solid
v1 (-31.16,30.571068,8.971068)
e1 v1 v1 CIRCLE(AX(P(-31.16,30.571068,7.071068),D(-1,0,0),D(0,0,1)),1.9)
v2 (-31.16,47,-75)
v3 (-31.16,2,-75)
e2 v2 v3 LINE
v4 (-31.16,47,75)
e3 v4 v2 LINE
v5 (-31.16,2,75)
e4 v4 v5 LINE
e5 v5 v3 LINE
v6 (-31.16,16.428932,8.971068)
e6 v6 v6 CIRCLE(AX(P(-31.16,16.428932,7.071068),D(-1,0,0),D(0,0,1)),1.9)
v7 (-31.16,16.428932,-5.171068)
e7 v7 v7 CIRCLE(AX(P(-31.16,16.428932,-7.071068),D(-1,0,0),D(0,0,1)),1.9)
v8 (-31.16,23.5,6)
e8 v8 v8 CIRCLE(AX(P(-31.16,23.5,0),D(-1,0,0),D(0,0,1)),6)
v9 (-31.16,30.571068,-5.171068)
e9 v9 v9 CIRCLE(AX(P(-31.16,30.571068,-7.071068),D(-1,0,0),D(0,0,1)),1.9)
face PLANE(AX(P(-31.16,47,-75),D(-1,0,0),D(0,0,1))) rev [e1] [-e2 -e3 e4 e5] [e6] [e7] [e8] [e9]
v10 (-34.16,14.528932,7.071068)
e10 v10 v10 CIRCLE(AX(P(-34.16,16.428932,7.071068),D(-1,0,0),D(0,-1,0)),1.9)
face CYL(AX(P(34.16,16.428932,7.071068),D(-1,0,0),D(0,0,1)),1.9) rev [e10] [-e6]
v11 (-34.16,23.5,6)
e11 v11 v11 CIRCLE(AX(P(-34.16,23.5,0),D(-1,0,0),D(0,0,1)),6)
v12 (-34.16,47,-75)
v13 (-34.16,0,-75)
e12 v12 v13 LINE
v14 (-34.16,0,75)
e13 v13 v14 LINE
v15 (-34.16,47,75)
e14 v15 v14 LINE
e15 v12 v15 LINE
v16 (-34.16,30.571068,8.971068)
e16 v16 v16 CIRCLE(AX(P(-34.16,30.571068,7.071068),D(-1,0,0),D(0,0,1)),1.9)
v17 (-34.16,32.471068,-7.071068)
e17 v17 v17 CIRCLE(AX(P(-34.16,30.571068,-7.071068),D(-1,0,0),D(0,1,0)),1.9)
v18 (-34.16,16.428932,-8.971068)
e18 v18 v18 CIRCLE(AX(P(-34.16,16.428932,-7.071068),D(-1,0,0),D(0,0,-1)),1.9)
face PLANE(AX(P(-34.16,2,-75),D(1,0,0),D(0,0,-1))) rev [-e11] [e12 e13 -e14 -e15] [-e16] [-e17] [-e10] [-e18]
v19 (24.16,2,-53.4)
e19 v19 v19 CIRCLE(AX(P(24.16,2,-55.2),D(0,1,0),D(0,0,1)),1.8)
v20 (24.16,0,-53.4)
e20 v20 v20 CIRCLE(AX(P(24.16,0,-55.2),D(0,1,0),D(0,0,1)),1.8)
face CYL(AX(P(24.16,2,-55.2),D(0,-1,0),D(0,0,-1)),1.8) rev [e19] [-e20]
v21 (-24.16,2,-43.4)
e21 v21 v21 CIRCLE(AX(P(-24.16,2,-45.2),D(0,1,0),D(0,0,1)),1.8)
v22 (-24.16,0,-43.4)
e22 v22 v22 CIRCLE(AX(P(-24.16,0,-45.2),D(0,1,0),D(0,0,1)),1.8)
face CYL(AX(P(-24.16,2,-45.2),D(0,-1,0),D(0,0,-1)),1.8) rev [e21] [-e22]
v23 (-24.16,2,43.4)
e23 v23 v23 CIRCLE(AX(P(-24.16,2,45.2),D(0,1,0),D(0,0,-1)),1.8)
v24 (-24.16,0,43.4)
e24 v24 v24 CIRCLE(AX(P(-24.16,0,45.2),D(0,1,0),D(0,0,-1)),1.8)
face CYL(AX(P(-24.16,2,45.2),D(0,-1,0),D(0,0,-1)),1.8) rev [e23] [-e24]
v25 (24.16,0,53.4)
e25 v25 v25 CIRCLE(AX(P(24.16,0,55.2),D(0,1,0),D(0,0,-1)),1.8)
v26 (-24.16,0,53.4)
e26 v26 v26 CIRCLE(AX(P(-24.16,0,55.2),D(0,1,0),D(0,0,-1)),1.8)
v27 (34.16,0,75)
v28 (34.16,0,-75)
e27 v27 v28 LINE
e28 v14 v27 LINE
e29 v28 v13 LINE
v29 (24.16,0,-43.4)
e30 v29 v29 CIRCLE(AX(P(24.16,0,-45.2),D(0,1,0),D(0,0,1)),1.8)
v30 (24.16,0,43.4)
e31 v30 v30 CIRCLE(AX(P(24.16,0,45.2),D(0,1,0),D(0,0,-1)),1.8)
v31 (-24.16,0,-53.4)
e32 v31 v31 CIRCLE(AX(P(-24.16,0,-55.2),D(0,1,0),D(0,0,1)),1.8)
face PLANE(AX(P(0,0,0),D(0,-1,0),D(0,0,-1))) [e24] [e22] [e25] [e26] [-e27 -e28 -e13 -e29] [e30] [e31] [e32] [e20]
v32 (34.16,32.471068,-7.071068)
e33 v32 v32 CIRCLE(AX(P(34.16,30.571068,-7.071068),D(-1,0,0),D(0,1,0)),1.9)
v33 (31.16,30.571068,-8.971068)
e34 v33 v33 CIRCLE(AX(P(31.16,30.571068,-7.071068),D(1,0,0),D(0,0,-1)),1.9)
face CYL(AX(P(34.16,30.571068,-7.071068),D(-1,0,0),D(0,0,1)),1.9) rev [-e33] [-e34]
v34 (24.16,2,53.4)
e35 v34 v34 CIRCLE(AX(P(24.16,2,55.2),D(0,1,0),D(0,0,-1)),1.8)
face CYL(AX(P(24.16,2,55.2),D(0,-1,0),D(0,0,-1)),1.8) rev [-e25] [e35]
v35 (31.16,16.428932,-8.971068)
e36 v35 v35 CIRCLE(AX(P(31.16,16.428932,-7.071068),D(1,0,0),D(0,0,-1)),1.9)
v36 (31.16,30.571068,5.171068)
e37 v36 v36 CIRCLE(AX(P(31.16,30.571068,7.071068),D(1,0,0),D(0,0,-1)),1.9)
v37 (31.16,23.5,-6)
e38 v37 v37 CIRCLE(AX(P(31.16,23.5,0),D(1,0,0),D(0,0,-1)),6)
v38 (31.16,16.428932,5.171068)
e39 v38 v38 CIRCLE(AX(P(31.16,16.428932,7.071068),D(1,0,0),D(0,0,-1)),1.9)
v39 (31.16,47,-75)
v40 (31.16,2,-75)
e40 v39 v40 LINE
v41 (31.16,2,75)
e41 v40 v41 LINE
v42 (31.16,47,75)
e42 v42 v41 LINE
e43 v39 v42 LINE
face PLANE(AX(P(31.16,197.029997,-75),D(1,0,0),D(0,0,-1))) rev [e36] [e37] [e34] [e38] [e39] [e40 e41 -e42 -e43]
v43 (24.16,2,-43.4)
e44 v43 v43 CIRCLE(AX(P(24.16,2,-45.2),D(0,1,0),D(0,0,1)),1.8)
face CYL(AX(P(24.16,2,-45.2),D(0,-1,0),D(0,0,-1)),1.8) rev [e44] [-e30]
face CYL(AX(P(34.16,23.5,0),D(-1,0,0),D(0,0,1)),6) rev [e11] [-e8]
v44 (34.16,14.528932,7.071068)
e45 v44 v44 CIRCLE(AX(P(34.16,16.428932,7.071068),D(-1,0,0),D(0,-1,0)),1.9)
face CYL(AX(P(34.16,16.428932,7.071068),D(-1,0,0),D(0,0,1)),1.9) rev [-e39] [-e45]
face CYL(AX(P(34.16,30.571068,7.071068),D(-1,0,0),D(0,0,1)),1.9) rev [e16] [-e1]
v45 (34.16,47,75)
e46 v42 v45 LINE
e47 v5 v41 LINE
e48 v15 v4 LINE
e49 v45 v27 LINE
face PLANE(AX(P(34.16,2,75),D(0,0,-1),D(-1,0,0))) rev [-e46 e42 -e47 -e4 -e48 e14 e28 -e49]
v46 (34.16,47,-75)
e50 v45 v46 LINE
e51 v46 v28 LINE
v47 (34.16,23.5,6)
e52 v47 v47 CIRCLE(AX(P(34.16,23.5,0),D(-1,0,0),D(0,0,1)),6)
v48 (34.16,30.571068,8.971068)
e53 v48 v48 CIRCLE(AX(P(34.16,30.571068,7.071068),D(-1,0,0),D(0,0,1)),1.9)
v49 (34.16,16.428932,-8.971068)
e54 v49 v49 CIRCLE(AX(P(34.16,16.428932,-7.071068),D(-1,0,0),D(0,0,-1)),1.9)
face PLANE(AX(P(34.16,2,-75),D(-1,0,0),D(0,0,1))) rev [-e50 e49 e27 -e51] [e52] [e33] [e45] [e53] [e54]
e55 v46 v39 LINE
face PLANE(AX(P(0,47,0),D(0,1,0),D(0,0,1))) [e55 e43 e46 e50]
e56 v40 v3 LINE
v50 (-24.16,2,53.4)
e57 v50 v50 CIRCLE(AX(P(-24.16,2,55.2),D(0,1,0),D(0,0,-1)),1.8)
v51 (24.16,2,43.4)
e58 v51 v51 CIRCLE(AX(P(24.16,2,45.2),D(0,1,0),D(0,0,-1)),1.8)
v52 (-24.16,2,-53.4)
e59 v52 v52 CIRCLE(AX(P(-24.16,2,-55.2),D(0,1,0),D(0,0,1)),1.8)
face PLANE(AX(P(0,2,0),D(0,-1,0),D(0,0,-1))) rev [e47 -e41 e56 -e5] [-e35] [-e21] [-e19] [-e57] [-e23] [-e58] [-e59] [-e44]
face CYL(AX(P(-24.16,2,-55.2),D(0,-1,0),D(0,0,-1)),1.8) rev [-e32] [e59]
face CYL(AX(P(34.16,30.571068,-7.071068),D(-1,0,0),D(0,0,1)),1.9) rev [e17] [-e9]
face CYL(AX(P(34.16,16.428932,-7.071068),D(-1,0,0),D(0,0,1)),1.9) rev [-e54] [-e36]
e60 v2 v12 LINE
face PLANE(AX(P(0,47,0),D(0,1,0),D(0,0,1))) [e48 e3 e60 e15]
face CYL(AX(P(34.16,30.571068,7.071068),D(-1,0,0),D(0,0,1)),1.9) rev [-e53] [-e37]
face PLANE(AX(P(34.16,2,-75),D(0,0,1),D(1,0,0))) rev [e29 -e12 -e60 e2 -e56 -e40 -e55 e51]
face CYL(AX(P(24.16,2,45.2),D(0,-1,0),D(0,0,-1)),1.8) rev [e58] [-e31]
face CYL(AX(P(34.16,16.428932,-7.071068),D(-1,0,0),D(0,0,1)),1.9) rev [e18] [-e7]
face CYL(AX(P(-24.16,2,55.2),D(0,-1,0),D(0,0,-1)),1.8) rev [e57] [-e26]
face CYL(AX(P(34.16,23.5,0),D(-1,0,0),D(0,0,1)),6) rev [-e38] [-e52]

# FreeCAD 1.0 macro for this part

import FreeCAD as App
import Part
import Sketcher
from FreeCAD import Vector
Q = App.Units.Quantity

doc = App.newDocument("Part")
params = doc.addObject("Spreadsheet::Sheet", "Params")
for row, (alias, value) in enumerate([
    ("sketch1_diameter", "3.6 mm"),
    ("sketch1_height", "150 mm"),
    ("sketch1_width", "68.32 mm"),
    ("pad1_length", "2 mm"),
    ("sketch2_width", "3 mm"),
    ("sketch2_height", "150 mm"),
    ("pad2_length", "45 mm"),
    ("sketch3_width", "3 mm"),
    ("sketch3_height", "150 mm"),
    ("pad3_length", "45 mm"),
    ("sketch4_diameter", "12 mm"),
    ("sketch4_diameter2", "3.8 mm"),
], start=1):
    params.set(f"A{row}", alias)
    params.set(f"B{row}", "=" + value)
    params.setAlias(f"B{row}", alias)

body = doc.addObject("PartDesign::Body", "Body")

# Sketch on XZ plane
sketch1 = body.newObject("Sketcher::SketchObject", "Sketch")
sketch1.AttachmentSupport = (doc.getObject("XZ_Plane"), [""])
sketch1.MapMode = "FlatFace"
sketch1.addGeometry([
    Part.LineSegment(Vector(-34.2, -75, 0), Vector(-34.2, 75, 0)),  # 0
    Part.LineSegment(Vector(-34.2, 75, 0), Vector(34.2, 75, 0)),  # 1
    Part.LineSegment(Vector(34.2, 75, 0), Vector(34.2, -75, 0)),  # 2
    Part.LineSegment(Vector(34.2, -75, 0), Vector(-34.2, -75, 0)),  # 3
    Part.Circle(Vector(-24.2, 55.2, 0), Vector(0, 0, 1), 1.8),  # 4
    Part.Circle(Vector(-24.2, 45.2, 0), Vector(0, 0, 1), 1.8),  # 5
    Part.Circle(Vector(24.2, 55.2, 0), Vector(0, 0, 1), 1.8),  # 6
    Part.Circle(Vector(24.2, 45.2, 0), Vector(0, 0, 1), 1.8),  # 7
    Part.Circle(Vector(-24.2, -45.2, 0), Vector(0, 0, 1), 1.8),  # 8
    Part.Circle(Vector(-24.2, -55.2, 0), Vector(0, 0, 1), 1.8),  # 9
    Part.Circle(Vector(24.2, -45.2, 0), Vector(0, 0, 1), 1.8),  # 10
    Part.Circle(Vector(24.2, -55.2, 0), Vector(0, 0, 1), 1.8),  # 11
], False)
sketch1.addConstraint([
    Sketcher.Constraint("Coincident", 0, 2, 1, 1),
    Sketcher.Constraint("Coincident", 1, 2, 2, 1),
    Sketcher.Constraint("Coincident", 2, 2, 3, 1),
    Sketcher.Constraint("Coincident", 3, 2, 0, 1),
    Sketcher.Constraint("Vertical", 0),
    Sketcher.Constraint("Horizontal", 1),
    Sketcher.Constraint("Vertical", 2),
    Sketcher.Constraint("Horizontal", 3),
    Sketcher.Constraint("Equal", 4, 5),
    Sketcher.Constraint("Equal", 5, 6),
    Sketcher.Constraint("Equal", 6, 7),
    Sketcher.Constraint("Equal", 7, 8),
    Sketcher.Constraint("Equal", 8, 9),
    Sketcher.Constraint("Equal", 9, 10),
    Sketcher.Constraint("Equal", 10, 11),
    Sketcher.Constraint("Symmetric", 7, 3, 8, 3, -1, 1),
    Sketcher.Constraint("Symmetric", 6, 3, 9, 3, -1, 1),
    Sketcher.Constraint("Symmetric", 5, 3, 10, 3, -1, 1),
    Sketcher.Constraint("Symmetric", 4, 3, 11, 3, -1, 1),
    Sketcher.Constraint("Symmetric", 0, 2, 2, 2, -1, 1),
    Sketcher.Constraint("Symmetric", 4, 3, 6, 3, -2),
    Sketcher.Constraint("Symmetric", 5, 3, 7, 3, -2),
    Sketcher.Constraint("Vertical", 4, 3, 5, 3),
    Sketcher.Constraint("Diameter", 4, Q("3.6 mm")),
    Sketcher.Constraint("DistanceY", 0, 1, 0, 2, Q("150 mm")),
    Sketcher.Constraint("DistanceY", 5, 3, 4, 3, Q("10 mm")),
    Sketcher.Constraint("DistanceX", 0, 2, 4, 3, Q("10 mm")),
    Sketcher.Constraint("DistanceX", 1, 1, 1, 2, Q("68.32 mm")),
    Sketcher.Constraint("DistanceY", -1, 1, 4, 3, Q("55.2 mm")),
])
sketch1.setExpression("Constraints[23]", "Params.sketch1_diameter")
sketch1.setExpression("Constraints[24]", "Params.sketch1_height")
sketch1.setExpression("Constraints[27]", "Params.sketch1_width")
pad1 = body.newObject("PartDesign::Pad", "Pad")
pad1.Profile = sketch1
pad1.setExpression("Length", "Params.pad1_length")
pad1.Reversed = True

# Sketch on XZ plane
sketch2 = body.newObject("Sketcher::SketchObject", "Sketch001")
sketch2.AttachmentSupport = (doc.getObject("XZ_Plane"), [""])
sketch2.MapMode = "FlatFace"
sketch2.AttachmentOffset = App.Placement(Vector(0, 0, -2), App.Rotation())
sketch2.addGeometry([
    Part.LineSegment(Vector(-34.2, -75, 0), Vector(-34.2, 75, 0)),
    Part.LineSegment(Vector(-34.2, 75, 0), Vector(-31.2, 75, 0)),
    Part.LineSegment(Vector(-31.2, 75, 0), Vector(-31.2, -75, 0)),
    Part.LineSegment(Vector(-31.2, -75, 0), Vector(-34.2, -75, 0)),
], False)
sketch2.addConstraint([
    Sketcher.Constraint("Coincident", 0, 2, 1, 1),
    Sketcher.Constraint("Coincident", 1, 2, 2, 1),
    Sketcher.Constraint("Coincident", 2, 2, 3, 1),
    Sketcher.Constraint("Coincident", 3, 2, 0, 1),
    Sketcher.Constraint("Vertical", 0),
    Sketcher.Constraint("Horizontal", 1),
    Sketcher.Constraint("Vertical", 2),
    Sketcher.Constraint("Horizontal", 3),
    Sketcher.Constraint("DistanceX", 1, 1, 1, 2, Q("3 mm")),
    Sketcher.Constraint("DistanceY", 0, 1, 0, 2, Q("150 mm")),
    Sketcher.Constraint("DistanceY", -1, 1, 0, 2, Q("75 mm")),
    Sketcher.Constraint("DistanceX", 0, 2, -1, 1, Q("34.16 mm")),
])
sketch2.setExpression("Constraints[8]", "Params.sketch2_width")
sketch2.setExpression("Constraints[9]", "Params.sketch2_height")
pad2 = body.newObject("PartDesign::Pad", "Pad001")
pad2.Profile = sketch2
pad2.setExpression("Length", "Params.pad2_length")
pad2.Reversed = True

# Sketch on XZ plane
sketch3 = body.newObject("Sketcher::SketchObject", "Sketch002")
sketch3.AttachmentSupport = (doc.getObject("XZ_Plane"), [""])
sketch3.MapMode = "FlatFace"
sketch3.AttachmentOffset = App.Placement(Vector(0, 0, -2), App.Rotation())
sketch3.addGeometry([
    Part.LineSegment(Vector(31.2, -75, 0), Vector(31.2, 75, 0)),
    Part.LineSegment(Vector(31.2, 75, 0), Vector(34.2, 75, 0)),
    Part.LineSegment(Vector(34.2, 75, 0), Vector(34.2, -75, 0)),
    Part.LineSegment(Vector(34.2, -75, 0), Vector(31.2, -75, 0)),
], False)
sketch3.addConstraint([
    Sketcher.Constraint("Coincident", 0, 2, 1, 1),
    Sketcher.Constraint("Coincident", 1, 2, 2, 1),
    Sketcher.Constraint("Coincident", 2, 2, 3, 1),
    Sketcher.Constraint("Coincident", 3, 2, 0, 1),
    Sketcher.Constraint("Vertical", 0),
    Sketcher.Constraint("Horizontal", 1),
    Sketcher.Constraint("Vertical", 2),
    Sketcher.Constraint("Horizontal", 3),
    Sketcher.Constraint("DistanceX", 1, 1, 1, 2, Q("3 mm")),
    Sketcher.Constraint("DistanceY", 0, 1, 0, 2, Q("150 mm")),
    Sketcher.Constraint("DistanceY", -1, 1, 0, 2, Q("75 mm")),
    Sketcher.Constraint("DistanceX", -1, 1, 0, 2, Q("31.16 mm")),
])
sketch3.setExpression("Constraints[8]", "Params.sketch3_width")
sketch3.setExpression("Constraints[9]", "Params.sketch3_height")
pad3 = body.newObject("PartDesign::Pad", "Pad002")
pad3.Profile = sketch3
pad3.setExpression("Length", "Params.pad3_length")
pad3.Reversed = True

# Sketch on YZ plane
sketch4 = body.newObject("Sketcher::SketchObject", "Sketch003")
sketch4.AttachmentSupport = (doc.getObject("YZ_Plane"), [""])
sketch4.MapMode = "FlatFace"
sketch4.AttachmentOffset = App.Placement(Vector(0, 0, -34.16), App.Rotation())
sketch4.addGeometry([
    Part.Circle(Vector(23.5, 0, 0), Vector(0, 0, 1), 6),
    Part.Circle(Vector(30.6, 7.1, 0), Vector(0, 0, 1), 1.9),
], False)
sketch4.addConstraint([
    Sketcher.Constraint("PointOnObject", 0, 3, -1),
    Sketcher.Constraint("Diameter", 0, Q("12 mm")),
    Sketcher.Constraint("Diameter", 1, Q("3.8 mm")),
    Sketcher.Constraint("DistanceX", -1, 1, 0, 3, Q("23.5 mm")),
    Sketcher.Constraint("DistanceX", -1, 1, 1, 3, Q("30.571068 mm")),
    Sketcher.Constraint("DistanceY", -1, 1, 1, 3, Q("7.071068 mm")),
])
sketch4.setExpression("Constraints[1]", "Params.sketch4_diameter")
sketch4.setExpression("Constraints[2]", "Params.sketch4_diameter2")
pocket1 = body.newObject("PartDesign::Pocket", "Pocket")
pocket1.Profile = sketch4
pocket1.Type = "ThroughAll"
pocket1.Reversed = True
doc.recompute()

datumline = body.newObject("PartDesign::Line", "DatumLine")
datumline.Placement = App.Placement(Vector(0, 23.5, 0), App.Rotation(Vector(0, 0, 1), Vector(1, 0, 0)))
polarpattern = body.newObject("PartDesign::PolarPattern", "PolarPattern")
polarpattern.Originals = [pocket1]
polarpattern.Axis = (datumline, [""])
polarpattern.Angle = 360
polarpattern.Occurrences = 4
body.Tip = polarpattern

doc.recompute()
